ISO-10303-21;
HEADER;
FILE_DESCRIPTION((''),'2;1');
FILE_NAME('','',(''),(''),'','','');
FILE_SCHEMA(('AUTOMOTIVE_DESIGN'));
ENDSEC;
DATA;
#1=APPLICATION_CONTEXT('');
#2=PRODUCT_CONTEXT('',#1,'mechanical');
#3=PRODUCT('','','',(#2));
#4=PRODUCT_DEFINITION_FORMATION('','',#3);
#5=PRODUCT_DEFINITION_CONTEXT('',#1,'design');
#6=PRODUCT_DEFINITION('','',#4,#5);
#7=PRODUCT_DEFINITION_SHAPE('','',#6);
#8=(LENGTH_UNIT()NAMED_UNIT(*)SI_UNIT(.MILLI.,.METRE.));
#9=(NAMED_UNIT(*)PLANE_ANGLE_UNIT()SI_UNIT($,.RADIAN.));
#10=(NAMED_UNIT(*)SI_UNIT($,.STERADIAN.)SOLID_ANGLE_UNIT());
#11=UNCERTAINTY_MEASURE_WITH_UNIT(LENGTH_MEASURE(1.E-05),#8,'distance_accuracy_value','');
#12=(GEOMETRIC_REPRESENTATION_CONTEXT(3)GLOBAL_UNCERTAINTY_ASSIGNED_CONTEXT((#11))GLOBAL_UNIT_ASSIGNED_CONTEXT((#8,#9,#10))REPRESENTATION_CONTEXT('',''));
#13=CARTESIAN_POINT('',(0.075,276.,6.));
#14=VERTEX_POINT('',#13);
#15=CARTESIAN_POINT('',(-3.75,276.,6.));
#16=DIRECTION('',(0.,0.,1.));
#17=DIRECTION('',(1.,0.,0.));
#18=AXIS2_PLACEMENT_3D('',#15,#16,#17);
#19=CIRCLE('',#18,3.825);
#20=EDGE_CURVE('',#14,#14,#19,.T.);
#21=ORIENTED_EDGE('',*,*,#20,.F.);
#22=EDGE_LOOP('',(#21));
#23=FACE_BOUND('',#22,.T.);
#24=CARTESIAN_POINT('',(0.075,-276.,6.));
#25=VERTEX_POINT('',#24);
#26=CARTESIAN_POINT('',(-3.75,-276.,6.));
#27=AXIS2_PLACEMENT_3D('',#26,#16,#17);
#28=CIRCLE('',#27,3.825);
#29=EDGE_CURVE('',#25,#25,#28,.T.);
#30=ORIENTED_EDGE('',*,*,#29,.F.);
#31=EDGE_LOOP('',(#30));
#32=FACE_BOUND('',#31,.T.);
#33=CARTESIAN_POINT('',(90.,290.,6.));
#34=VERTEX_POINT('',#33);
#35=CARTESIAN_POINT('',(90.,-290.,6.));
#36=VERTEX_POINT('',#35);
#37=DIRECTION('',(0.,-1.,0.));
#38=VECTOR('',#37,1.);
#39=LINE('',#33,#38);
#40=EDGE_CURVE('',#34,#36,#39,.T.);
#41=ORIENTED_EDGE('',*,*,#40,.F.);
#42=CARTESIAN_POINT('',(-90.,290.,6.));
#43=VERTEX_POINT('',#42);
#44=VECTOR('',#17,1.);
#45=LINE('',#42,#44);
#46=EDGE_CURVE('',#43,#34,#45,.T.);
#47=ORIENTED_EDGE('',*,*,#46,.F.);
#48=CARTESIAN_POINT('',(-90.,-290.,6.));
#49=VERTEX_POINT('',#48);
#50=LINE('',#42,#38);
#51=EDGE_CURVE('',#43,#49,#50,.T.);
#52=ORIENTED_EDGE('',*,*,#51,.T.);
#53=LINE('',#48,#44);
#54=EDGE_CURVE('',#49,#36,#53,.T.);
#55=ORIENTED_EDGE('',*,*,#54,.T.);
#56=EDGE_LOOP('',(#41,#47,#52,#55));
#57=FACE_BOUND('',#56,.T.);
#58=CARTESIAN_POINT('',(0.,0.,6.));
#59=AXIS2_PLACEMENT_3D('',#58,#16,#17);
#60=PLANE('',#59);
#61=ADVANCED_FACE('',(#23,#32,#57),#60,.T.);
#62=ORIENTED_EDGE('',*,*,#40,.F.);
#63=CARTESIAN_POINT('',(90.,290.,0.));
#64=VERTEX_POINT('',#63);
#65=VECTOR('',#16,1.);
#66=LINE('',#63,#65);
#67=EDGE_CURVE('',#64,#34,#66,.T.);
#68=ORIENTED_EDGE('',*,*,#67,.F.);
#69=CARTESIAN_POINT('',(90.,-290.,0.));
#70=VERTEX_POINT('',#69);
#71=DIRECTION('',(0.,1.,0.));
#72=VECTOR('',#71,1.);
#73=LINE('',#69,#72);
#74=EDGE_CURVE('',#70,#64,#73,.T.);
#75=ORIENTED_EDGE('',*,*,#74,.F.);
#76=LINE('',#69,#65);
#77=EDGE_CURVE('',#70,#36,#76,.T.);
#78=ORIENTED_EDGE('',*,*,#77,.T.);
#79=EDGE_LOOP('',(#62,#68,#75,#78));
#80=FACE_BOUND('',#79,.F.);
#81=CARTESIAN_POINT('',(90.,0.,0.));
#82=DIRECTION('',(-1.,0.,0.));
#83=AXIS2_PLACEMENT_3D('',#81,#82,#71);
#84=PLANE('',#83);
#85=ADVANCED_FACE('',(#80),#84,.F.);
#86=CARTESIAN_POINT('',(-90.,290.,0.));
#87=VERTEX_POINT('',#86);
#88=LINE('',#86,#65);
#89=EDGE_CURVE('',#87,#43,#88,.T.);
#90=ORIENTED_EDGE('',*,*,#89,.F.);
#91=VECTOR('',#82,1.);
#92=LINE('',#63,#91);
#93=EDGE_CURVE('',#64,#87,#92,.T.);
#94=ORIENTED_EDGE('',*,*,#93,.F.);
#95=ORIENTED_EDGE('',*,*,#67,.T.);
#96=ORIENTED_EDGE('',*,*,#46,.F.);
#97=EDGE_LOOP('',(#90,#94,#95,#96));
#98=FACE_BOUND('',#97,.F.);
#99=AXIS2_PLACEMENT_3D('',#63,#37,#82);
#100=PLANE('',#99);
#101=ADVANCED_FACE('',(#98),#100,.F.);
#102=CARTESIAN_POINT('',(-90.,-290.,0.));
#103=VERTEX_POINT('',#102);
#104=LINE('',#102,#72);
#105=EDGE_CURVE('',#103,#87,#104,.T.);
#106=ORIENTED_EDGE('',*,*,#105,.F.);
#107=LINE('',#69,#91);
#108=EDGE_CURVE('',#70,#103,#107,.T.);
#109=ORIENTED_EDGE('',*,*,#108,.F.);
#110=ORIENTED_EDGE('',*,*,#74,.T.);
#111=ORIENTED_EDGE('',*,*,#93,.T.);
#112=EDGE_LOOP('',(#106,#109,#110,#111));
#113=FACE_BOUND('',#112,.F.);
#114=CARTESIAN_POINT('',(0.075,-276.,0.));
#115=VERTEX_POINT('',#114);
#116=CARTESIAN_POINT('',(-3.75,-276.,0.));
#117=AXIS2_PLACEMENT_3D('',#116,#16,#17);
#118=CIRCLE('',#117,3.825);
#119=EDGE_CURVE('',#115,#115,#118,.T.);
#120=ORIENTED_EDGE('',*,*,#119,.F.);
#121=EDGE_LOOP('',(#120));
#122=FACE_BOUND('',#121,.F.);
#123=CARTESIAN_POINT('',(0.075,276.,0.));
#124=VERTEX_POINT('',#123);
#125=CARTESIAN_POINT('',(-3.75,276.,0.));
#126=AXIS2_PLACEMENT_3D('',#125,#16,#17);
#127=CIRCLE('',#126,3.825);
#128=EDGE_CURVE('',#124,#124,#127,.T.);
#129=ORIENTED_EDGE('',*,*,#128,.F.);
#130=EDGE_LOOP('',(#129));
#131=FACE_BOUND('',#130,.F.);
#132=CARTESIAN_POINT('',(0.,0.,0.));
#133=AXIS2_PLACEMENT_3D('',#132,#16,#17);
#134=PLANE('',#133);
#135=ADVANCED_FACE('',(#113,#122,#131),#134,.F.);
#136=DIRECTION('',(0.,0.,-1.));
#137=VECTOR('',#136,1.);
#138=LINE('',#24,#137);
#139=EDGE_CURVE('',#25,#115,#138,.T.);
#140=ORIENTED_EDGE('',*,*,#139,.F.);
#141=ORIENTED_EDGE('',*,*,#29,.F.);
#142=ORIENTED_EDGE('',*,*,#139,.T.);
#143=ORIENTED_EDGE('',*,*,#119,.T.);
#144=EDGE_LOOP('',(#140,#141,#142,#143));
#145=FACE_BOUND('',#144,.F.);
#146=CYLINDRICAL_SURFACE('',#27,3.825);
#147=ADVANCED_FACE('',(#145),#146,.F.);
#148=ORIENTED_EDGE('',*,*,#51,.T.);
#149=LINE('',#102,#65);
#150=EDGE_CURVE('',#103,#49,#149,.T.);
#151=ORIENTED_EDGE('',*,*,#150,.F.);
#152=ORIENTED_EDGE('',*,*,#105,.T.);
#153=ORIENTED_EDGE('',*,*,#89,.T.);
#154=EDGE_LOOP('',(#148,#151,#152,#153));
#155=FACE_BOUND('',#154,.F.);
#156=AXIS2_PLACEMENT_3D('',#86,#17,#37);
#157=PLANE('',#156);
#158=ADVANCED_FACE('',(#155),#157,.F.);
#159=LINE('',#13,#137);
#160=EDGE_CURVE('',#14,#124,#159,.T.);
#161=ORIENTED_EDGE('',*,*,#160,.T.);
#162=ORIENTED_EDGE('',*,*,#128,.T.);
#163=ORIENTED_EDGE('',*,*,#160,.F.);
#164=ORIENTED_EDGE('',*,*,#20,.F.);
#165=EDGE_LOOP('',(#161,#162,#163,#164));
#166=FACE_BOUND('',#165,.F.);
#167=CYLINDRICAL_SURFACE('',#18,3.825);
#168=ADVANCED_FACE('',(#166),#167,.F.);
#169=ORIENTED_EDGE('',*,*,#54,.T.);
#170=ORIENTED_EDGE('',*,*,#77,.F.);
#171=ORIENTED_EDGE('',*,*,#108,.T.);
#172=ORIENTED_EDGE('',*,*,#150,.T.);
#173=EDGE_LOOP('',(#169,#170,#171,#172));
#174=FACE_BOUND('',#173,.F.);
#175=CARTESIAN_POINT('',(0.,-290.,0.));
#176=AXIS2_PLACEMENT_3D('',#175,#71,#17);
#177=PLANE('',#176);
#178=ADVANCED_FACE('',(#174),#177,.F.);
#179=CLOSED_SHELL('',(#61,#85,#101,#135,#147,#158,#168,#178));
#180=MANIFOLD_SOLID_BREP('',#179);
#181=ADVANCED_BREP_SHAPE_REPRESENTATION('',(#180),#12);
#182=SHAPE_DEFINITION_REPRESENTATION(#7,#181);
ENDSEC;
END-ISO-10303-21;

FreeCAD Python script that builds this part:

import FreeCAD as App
import Part
import Sketcher

doc = App.newDocument("Part")
body = doc.addObject("PartDesign::Body", "Body")

# Sketch on XY plane
sketch1 = body.newObject("Sketcher::SketchObject", "Sketch")
sketch1.AttachmentSupport = (doc.getObject("XY_Plane"), [""])
sketch1.MapMode = "FlatFace"
sketch1.addGeometry(Part.LineSegment(App.Vector(90, 290, 0), App.Vector(-90, 290, 0)), False)
sketch1.addGeometry(Part.LineSegment(App.Vector(-90, 290, 0), App.Vector(-90, -290, 0)), False)
sketch1.addGeometry(Part.LineSegment(App.Vector(-90, -290, 0), App.Vector(90, -290, 0)), False)
sketch1.addGeometry(Part.LineSegment(App.Vector(90, -290, 0), App.Vector(90, 290, 0)), False)
sketch1.addConstraint(Sketcher.Constraint("Coincident", 0, 2, 1, 1))
sketch1.addConstraint(Sketcher.Constraint("Coincident", 1, 2, 2, 1))
sketch1.addConstraint(Sketcher.Constraint("Coincident", 2, 2, 3, 1))
sketch1.addConstraint(Sketcher.Constraint("Coincident", 3, 2, 0, 1))
sketch1.addConstraint(Sketcher.Constraint("Horizontal", 0))
sketch1.addConstraint(Sketcher.Constraint("Vertical", 1))
sketch1.addConstraint(Sketcher.Constraint("Horizontal", 2))
sketch1.addConstraint(Sketcher.Constraint("Vertical", 3))
sketch1.addConstraint(Sketcher.Constraint("Symmetric", 0, 2, 2, 2, -1, 1))
sketch1.addConstraint(Sketcher.Constraint("DistanceX", 0, 2, 0, 1, 180.0))
sketch1.addConstraint(Sketcher.Constraint("DistanceY", 1, 2, 1, 1, 580.0))
pad1 = body.newObject("PartDesign::Pad", "Pad")
pad1.Profile = sketch1
pad1.Length = 6

# Sketch on XY plane
sketch2 = body.newObject("Sketcher::SketchObject", "Sketch001")
sketch2.AttachmentSupport = (doc.getObject("XY_Plane"), [""])
sketch2.MapMode = "FlatFace"
sketch2.AttachmentOffset = App.Placement(App.Vector(0, 0, 6), App.Rotation())
sketch2.addGeometry(Part.Circle(App.Vector(-3.8, -276, 0), App.Vector(0, 0, 1), 3.8), False)
sketch2.addGeometry(Part.Circle(App.Vector(-3.8, 276, 0), App.Vector(0, 0, 1), 3.8), False)
sketch2.addConstraint(Sketcher.Constraint("Equal", 0, 1))
sketch2.addConstraint(Sketcher.Constraint("Symmetric", 0, 3, 1, 3, -1))
sketch2.addConstraint(Sketcher.Constraint("Diameter", 0, 7.65))
sketch2.addConstraint(Sketcher.Constraint("DistanceY", 0, 3, -1, 1, 276.0))
sketch2.addConstraint(Sketcher.Constraint("DistanceX", 0, 3, -1, 1, 3.75))
pocket1 = body.newObject("PartDesign::Pocket", "Pocket")
pocket1.Profile = sketch2
pocket1.Length = 10

doc.recompute()
